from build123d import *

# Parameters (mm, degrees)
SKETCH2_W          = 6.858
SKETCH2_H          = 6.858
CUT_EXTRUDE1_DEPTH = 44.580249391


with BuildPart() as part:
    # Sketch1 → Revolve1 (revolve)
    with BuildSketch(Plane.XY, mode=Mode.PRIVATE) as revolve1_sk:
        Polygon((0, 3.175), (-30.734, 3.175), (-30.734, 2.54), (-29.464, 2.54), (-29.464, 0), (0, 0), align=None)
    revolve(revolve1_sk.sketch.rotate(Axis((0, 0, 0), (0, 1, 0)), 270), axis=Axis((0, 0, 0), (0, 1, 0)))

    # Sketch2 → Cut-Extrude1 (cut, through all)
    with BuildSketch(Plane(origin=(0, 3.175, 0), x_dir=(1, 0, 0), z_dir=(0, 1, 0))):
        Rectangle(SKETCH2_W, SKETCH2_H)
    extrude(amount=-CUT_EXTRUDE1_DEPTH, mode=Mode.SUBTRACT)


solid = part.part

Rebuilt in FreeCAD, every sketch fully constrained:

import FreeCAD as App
import Part
import Sketcher
Q = App.Units.Quantity


def add_polygon(sketch, points):
    """Adds a closed chain of lines whose ends are joined by coincident constraints."""
    first, n = sketch.GeometryCount, len(points)
    for a, b in zip(points, points[1:] + points[:1]):
        sketch.addGeometry(Part.LineSegment(App.Vector(*a, 0), App.Vector(*b, 0)), False)
    for i in range(n):
        sketch.addConstraint(Sketcher.Constraint("Coincident", first + i, 2, first + (i + 1) % n, 1))

doc = App.newDocument("Part")
body = doc.addObject("PartDesign::Body", "Body")

sketch1 = doc.addObject("Sketcher::SketchObject", "Sketch")
body.addObject(sketch1)
sketch1.AttachmentSupport = (doc.XY_Plane, [""])
sketch1.MapMode = "FlatFace"
add_polygon(sketch1, [(0, 3.2), (-30.7, 3.2), (-30.7, 2.5), (-29.5, 2.5), (-29.5, 0), (0, 0)])
sketch1.addConstraint([
    Sketcher.Constraint("Horizontal", 0),
    Sketcher.Constraint("Vertical", 1),
    Sketcher.Constraint("Horizontal", 2),
    Sketcher.Constraint("Vertical", 3),
    Sketcher.Constraint("Horizontal", 4),
    Sketcher.Constraint("Vertical", 5),
    Sketcher.Constraint("Coincident", 4, 2, -1, 1),
    Sketcher.Constraint("DistanceY", 3, 2, 3, 1, Q("0.1 in")),
    Sketcher.Constraint("DistanceX", 0, 2, 0, 1, Q("1.21 in")),
    Sketcher.Constraint("DistanceX", 2, 1, 2, 2, Q("0.05 in")),
    Sketcher.Constraint("DistanceY", 1, 2, 1, 1, Q("0.025 in")),
])
revolution = doc.addObject("PartDesign::Revolution", "Revolution")
body.addObject(revolution)
revolution.Profile = sketch1
revolution.ReferenceAxis = (sketch1, ["V_Axis"])
revolution.Angle = 360

sketch2 = doc.addObject("Sketcher::SketchObject", "Sketch001")
body.addObject(sketch2)
sketch2.AttachmentSupport = (doc.XZ_Plane, [""])
sketch2.MapMode = "FlatFace"
sketch2.AttachmentOffset = App.Placement(App.Vector(0, 0, -0.125 * 25.4), App.Rotation())
add_polygon(sketch2, [(-3, -3), (-3, 3), (3, 3), (3, -3)])
sketch2.addConstraint([
    Sketcher.Constraint("Vertical", 0),
    Sketcher.Constraint("Horizontal", 1),
    Sketcher.Constraint("Vertical", 2),
    Sketcher.Constraint("Horizontal", 3),
    Sketcher.Constraint("Symmetric", 0, 2, 2, 2, -1, 1),
    Sketcher.Constraint("Equal", 3, 0),
    Sketcher.Constraint("DistanceX", 1, 1, 1, 2, Q("0.27 in")),
])
pocket1 = doc.addObject("PartDesign::Pocket", "Pocket")
body.addObject(pocket1)
pocket1.Profile = sketch2
pocket1.Type = "ThroughAll"
pocket1.Reversed = True

doc.recompute()
